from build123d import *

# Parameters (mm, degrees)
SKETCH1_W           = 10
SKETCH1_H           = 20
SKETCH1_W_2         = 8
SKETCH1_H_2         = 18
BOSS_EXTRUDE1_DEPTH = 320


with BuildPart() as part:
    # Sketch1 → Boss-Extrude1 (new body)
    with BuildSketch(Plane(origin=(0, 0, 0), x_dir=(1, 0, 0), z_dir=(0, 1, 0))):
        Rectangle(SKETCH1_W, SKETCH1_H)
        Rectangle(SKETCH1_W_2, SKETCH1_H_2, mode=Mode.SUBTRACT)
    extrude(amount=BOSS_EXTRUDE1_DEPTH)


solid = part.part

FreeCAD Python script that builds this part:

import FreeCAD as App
import Part
import Sketcher

V = App.Vector
Q = App.Units.Quantity

doc = App.newDocument("Part")
body = doc.addObject("PartDesign::Body", "Body")

# Sketch on XZ plane
sketch1 = doc.addObject("Sketcher::SketchObject", "Sketch")
body.addObject(sketch1)
sketch1.AttachmentSupport = (doc.XZ_Plane, [""])
sketch1.MapMode = "FlatFace"
sketch1.addGeometry(Part.LineSegment(V(-5, -10, 0), V(-5, 10, 0)), False)
sketch1.addGeometry(Part.LineSegment(V(-5, 10, 0), V(5, 10, 0)), False)
sketch1.addGeometry(Part.LineSegment(V(5, 10, 0), V(5, -10, 0)), False)
sketch1.addGeometry(Part.LineSegment(V(5, -10, 0), V(-5, -10, 0)), False)
sketch1.addGeometry(Part.LineSegment(V(4, 9, 0), V(-4, 9, 0)), False)
sketch1.addGeometry(Part.LineSegment(V(-4, 9, 0), V(-4, -9, 0)), False)
sketch1.addGeometry(Part.LineSegment(V(-4, -9, 0), V(4, -9, 0)), False)
sketch1.addGeometry(Part.LineSegment(V(4, -9, 0), V(4, 9, 0)), False)
sketch1.addConstraint(Sketcher.Constraint("Coincident", 0, 2, 1, 1))
sketch1.addConstraint(Sketcher.Constraint("Coincident", 1, 2, 2, 1))
sketch1.addConstraint(Sketcher.Constraint("Coincident", 2, 2, 3, 1))
sketch1.addConstraint(Sketcher.Constraint("Coincident", 3, 2, 0, 1))
sketch1.addConstraint(Sketcher.Constraint("Coincident", 4, 2, 5, 1))
sketch1.addConstraint(Sketcher.Constraint("Coincident", 5, 2, 6, 1))
sketch1.addConstraint(Sketcher.Constraint("Coincident", 6, 2, 7, 1))
sketch1.addConstraint(Sketcher.Constraint("Coincident", 7, 2, 4, 1))
sketch1.addConstraint(Sketcher.Constraint("Vertical", 0))
sketch1.addConstraint(Sketcher.Constraint("Horizontal", 1))
sketch1.addConstraint(Sketcher.Constraint("Vertical", 2))
sketch1.addConstraint(Sketcher.Constraint("Horizontal", 3))
sketch1.addConstraint(Sketcher.Constraint("Horizontal", 4))
sketch1.addConstraint(Sketcher.Constraint("Vertical", 5))
sketch1.addConstraint(Sketcher.Constraint("Horizontal", 6))
sketch1.addConstraint(Sketcher.Constraint("Vertical", 7))
sketch1.addConstraint(Sketcher.Constraint("Symmetric", 0, 2, 2, 2, -1, 1))
sketch1.addConstraint(Sketcher.Constraint("Symmetric", 4, 2, 6, 2, -1, 1))
sketch1.addConstraint(Sketcher.Constraint("DistanceX", 1, 1, 1, 2, Q("10 mm")))
sketch1.addConstraint(Sketcher.Constraint("DistanceX", 4, 2, 4, 1, Q("8 mm")))
sketch1.addConstraint(Sketcher.Constraint("DistanceY", 0, 1, 0, 2, Q("20 mm")))
sketch1.addConstraint(Sketcher.Constraint("DistanceY", 5, 2, 5, 1, Q("18 mm")))
pad1 = doc.addObject("PartDesign::Pad", "Pad")
body.addObject(pad1)
pad1.Profile = sketch1
pad1.Length = 320
pad1.Reversed = True

doc.recompute()
